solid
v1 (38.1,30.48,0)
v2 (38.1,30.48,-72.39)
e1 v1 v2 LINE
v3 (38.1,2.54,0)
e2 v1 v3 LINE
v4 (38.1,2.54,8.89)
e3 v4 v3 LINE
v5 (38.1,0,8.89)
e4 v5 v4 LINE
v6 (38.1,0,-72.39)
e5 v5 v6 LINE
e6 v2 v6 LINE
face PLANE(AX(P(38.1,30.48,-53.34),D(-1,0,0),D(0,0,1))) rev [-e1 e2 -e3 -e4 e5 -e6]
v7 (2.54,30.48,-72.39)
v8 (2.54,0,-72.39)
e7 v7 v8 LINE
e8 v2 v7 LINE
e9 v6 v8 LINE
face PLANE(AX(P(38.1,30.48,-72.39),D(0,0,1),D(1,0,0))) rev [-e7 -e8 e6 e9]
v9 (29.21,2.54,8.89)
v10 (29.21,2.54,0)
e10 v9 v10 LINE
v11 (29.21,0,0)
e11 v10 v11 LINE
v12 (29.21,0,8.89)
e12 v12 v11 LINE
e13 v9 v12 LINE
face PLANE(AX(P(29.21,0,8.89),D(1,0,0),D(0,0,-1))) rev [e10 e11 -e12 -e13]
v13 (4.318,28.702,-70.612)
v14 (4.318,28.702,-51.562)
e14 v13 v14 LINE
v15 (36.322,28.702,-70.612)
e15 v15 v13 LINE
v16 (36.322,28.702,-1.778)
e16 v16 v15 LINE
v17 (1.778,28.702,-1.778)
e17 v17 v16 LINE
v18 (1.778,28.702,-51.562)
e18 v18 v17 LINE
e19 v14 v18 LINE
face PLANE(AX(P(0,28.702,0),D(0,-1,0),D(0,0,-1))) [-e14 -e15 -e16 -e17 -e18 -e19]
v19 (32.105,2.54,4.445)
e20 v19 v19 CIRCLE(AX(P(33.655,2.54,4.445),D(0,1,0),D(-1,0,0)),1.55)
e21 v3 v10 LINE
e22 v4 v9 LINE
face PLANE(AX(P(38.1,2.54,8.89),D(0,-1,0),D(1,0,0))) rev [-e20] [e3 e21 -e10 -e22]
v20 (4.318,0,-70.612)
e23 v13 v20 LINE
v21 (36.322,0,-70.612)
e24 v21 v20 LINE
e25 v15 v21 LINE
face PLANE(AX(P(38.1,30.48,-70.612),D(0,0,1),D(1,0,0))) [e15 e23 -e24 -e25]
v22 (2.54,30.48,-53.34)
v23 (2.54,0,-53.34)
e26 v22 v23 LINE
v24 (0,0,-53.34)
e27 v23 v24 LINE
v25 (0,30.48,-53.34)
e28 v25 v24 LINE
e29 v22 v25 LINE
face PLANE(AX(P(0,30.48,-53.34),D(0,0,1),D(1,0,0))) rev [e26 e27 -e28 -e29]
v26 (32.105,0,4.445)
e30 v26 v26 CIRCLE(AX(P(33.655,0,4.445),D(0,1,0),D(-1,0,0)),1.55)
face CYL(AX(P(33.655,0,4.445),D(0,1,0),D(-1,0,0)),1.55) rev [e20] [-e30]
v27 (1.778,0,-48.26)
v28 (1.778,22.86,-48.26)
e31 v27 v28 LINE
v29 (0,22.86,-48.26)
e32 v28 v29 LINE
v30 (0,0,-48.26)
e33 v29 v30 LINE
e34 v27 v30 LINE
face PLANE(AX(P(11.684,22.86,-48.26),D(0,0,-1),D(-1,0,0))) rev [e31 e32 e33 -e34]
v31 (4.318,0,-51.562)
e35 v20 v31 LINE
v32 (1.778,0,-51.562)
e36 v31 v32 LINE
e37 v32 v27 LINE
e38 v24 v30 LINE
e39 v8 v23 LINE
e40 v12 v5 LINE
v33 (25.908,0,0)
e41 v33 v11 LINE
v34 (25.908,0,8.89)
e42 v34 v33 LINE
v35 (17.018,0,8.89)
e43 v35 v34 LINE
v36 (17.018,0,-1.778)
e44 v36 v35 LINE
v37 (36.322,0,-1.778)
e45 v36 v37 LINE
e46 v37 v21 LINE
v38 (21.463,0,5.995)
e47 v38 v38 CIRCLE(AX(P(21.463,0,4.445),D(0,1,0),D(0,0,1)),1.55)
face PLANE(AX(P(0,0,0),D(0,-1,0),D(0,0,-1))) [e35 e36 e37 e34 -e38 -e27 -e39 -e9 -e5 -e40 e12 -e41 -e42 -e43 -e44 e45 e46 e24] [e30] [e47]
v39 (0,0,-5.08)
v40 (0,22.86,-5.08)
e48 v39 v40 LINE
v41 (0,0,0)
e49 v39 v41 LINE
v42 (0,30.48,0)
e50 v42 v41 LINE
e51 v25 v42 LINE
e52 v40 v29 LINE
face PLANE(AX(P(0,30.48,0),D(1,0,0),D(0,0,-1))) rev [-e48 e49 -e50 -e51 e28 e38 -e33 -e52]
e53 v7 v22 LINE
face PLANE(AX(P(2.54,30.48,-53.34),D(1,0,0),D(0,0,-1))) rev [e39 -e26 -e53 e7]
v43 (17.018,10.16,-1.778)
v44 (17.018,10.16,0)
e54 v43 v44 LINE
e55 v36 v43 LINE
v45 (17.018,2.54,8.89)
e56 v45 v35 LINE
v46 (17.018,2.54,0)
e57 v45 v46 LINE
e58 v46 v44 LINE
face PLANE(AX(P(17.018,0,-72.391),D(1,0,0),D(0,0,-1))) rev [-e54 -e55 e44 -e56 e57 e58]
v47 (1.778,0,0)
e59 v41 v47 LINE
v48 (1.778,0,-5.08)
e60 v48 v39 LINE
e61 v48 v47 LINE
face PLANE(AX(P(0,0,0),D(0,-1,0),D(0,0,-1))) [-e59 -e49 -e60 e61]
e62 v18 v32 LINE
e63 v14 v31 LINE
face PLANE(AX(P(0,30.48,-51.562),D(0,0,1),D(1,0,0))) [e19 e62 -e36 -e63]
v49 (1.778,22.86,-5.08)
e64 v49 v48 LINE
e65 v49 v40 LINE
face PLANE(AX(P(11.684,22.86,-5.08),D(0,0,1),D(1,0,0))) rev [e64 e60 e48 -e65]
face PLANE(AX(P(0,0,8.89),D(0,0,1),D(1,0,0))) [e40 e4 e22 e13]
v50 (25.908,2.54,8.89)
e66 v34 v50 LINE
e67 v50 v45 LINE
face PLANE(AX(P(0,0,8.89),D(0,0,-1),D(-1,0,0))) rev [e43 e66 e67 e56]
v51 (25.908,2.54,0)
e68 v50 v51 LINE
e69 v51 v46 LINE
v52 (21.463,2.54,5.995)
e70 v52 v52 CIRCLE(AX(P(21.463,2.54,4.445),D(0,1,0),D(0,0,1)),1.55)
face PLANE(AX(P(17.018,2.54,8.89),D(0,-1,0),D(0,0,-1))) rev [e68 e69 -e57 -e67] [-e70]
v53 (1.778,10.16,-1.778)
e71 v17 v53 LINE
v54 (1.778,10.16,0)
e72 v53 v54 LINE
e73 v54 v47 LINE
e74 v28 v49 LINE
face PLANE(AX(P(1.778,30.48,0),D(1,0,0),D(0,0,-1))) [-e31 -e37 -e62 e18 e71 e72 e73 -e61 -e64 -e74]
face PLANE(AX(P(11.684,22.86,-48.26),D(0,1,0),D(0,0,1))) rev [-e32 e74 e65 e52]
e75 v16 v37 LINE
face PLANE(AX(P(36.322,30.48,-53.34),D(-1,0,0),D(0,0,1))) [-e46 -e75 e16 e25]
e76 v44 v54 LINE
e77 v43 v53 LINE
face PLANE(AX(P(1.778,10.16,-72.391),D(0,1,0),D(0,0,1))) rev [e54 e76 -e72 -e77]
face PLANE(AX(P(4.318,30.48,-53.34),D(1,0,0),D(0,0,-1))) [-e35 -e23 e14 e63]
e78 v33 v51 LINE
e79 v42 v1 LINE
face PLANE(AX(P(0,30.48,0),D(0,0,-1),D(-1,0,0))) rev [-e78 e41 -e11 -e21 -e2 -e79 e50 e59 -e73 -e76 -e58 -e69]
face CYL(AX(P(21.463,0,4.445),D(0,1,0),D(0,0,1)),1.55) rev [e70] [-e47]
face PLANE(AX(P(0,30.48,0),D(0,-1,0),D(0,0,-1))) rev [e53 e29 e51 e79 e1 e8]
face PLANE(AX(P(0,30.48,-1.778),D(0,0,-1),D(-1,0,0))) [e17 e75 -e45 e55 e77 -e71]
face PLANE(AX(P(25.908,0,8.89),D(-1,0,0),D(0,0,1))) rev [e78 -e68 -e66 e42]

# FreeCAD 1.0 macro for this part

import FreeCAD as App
import Part
import Sketcher

V = App.Vector
Q = App.Units.Quantity


def faces_at(feature, points):
    """Names of the faces that lie closest to the given points."""
    faces = feature.Shape.Faces
    near = lambda p: min(range(len(faces)), key=lambda i: faces[i].distToShape(Part.Vertex(*p))[0])
    return sorted({f"Face{near(p) + 1}" for p in points})

doc = App.newDocument("Part")
body = doc.addObject("PartDesign::Body", "Body")

sketch1 = body.newObject("Sketcher::SketchObject", "Sketch")
sketch1.AttachmentSupport = (doc.getObject("XZ_Plane"), [""])
sketch1.MapMode = "FlatFace"
sketch1.addGeometry(Part.LineSegment(V(0, 0, 0), V(38.1, 0, 0)), False)
sketch1.addGeometry(Part.LineSegment(V(38.1, 0, 0), V(38.1, -72.4, 0)), False)
sketch1.addGeometry(Part.LineSegment(V(38.1, -72.4, 0), V(2.5, -72.4, 0)), False)
sketch1.addGeometry(Part.LineSegment(V(2.5, -72.4, 0), V(2.5, -53.3, 0)), False)
sketch1.addGeometry(Part.LineSegment(V(2.5, -53.3, 0), V(0, -53.3, 0)), False)
sketch1.addGeometry(Part.LineSegment(V(0, -53.3, 0), V(0, 0, 0)), False)
sketch1.addConstraint(Sketcher.Constraint("Coincident", 0, 2, 1, 1))
sketch1.addConstraint(Sketcher.Constraint("Coincident", 1, 2, 2, 1))
sketch1.addConstraint(Sketcher.Constraint("Coincident", 2, 2, 3, 1))
sketch1.addConstraint(Sketcher.Constraint("Coincident", 3, 2, 4, 1))
sketch1.addConstraint(Sketcher.Constraint("Coincident", 4, 2, 5, 1))
sketch1.addConstraint(Sketcher.Constraint("Coincident", 5, 2, 0, 1))
sketch1.addConstraint(Sketcher.Constraint("Horizontal", 0))
sketch1.addConstraint(Sketcher.Constraint("Vertical", 1))
sketch1.addConstraint(Sketcher.Constraint("Horizontal", 2))
sketch1.addConstraint(Sketcher.Constraint("Vertical", 3))
sketch1.addConstraint(Sketcher.Constraint("Horizontal", 4))
sketch1.addConstraint(Sketcher.Constraint("Vertical", 5))
sketch1.addConstraint(Sketcher.Constraint("Coincident", 5, 2, -1, 1))
sketch1.addConstraint(Sketcher.Constraint("DistanceX", 0, 1, 0, 2, Q("1.5 in")))
sketch1.addConstraint(Sketcher.Constraint("DistanceX", 2, 2, 2, 1, Q("1.4 in")))
sketch1.addConstraint(Sketcher.Constraint("DistanceY", 5, 1, 5, 2, Q("2.1 in")))
sketch1.addConstraint(Sketcher.Constraint("DistanceY", 1, 2, 1, 1, Q("2.85 in")))
pad1 = body.newObject("PartDesign::Pad", "Pad")
pad1.Profile = sketch1
pad1.Length = Q("1.2 in")
pad1.Reversed = True
doc.recompute()

thickness = body.newObject("PartDesign::Thickness", "Thickness")
thickness.Base = (pad1, faces_at(pad1, [(19.05, 0, -36.195)]))
thickness.Value = Q("0.07 in")
thickness.Reversed = True
thickness.Join = "Intersection"

sketch2 = body.newObject("Sketcher::SketchObject", "Sketch001")
sketch2.AttachmentSupport = (doc.getObject("XY_Plane"), [""])
sketch2.MapMode = "FlatFace"
sketch2.addGeometry(Part.LineSegment(V(2, 10, 0), V(2, 0, 0)), False)
sketch2.addGeometry(Part.LineSegment(V(2, 0, 0), V(17, 0, 0)), False)
sketch2.addGeometry(Part.LineSegment(V(17, 0, 0), V(17, 10, 0)), False)
sketch2.addGeometry(Part.LineSegment(V(17, 10, 0), V(2, 10, 0)), False)
sketch2.addConstraint(Sketcher.Constraint("Coincident", 0, 2, 1, 1))
sketch2.addConstraint(Sketcher.Constraint("Coincident", 1, 2, 2, 1))
sketch2.addConstraint(Sketcher.Constraint("Coincident", 2, 2, 3, 1))
sketch2.addConstraint(Sketcher.Constraint("Coincident", 3, 2, 0, 1))
sketch2.addConstraint(Sketcher.Constraint("Vertical", 0))
sketch2.addConstraint(Sketcher.Constraint("Horizontal", 1))
sketch2.addConstraint(Sketcher.Constraint("Vertical", 2))
sketch2.addConstraint(Sketcher.Constraint("Horizontal", 3))
sketch2.addConstraint(Sketcher.Constraint("PointOnObject", 0, 2, -1))
sketch2.addConstraint(Sketcher.Constraint("DistanceX", 1, 1, 1, 2, Q("0.6 in")))
sketch2.addConstraint(Sketcher.Constraint("DistanceY", 0, 2, 0, 1, Q("0.4 in")))
sketch2.addConstraint(Sketcher.Constraint("DistanceX", -1, 1, 0, 2, Q("0.07 in")))
pocket1 = body.newObject("PartDesign::Pocket", "Pocket")
pocket1.Profile = sketch2
pocket1.Type = "UpToFirst"

sketch3 = body.newObject("Sketcher::SketchObject", "Sketch002")
sketch3.AttachmentSupport = (doc.getObject("XY_Plane"), [""])
sketch3.MapMode = "FlatFace"
sketch3.addGeometry(Part.LineSegment(V(17, 2.5, 0), V(17, 0, 0)), False)
sketch3.addGeometry(Part.LineSegment(V(17, 0, 0), V(25.9, 0, 0)), False)
sketch3.addGeometry(Part.LineSegment(V(25.9, 0, 0), V(25.9, 2.5, 0)), False)
sketch3.addGeometry(Part.LineSegment(V(25.9, 2.5, 0), V(17, 2.5, 0)), False)
sketch3.addGeometry(Part.LineSegment(V(29.2, 2.5, 0), V(29.2, 0, 0)), False)
sketch3.addGeometry(Part.LineSegment(V(29.2, 0, 0), V(38.1, 0, 0)), False)
sketch3.addGeometry(Part.LineSegment(V(38.1, 0, 0), V(38.1, 2.5, 0)), False)
sketch3.addGeometry(Part.LineSegment(V(38.1, 2.5, 0), V(29.2, 2.5, 0)), False)
sketch3.addConstraint(Sketcher.Constraint("Coincident", 0, 2, 1, 1))
sketch3.addConstraint(Sketcher.Constraint("Coincident", 1, 2, 2, 1))
sketch3.addConstraint(Sketcher.Constraint("Coincident", 2, 2, 3, 1))
sketch3.addConstraint(Sketcher.Constraint("Coincident", 3, 2, 0, 1))
sketch3.addConstraint(Sketcher.Constraint("Coincident", 4, 2, 5, 1))
sketch3.addConstraint(Sketcher.Constraint("Coincident", 5, 2, 6, 1))
sketch3.addConstraint(Sketcher.Constraint("Coincident", 6, 2, 7, 1))
sketch3.addConstraint(Sketcher.Constraint("Coincident", 7, 2, 4, 1))
sketch3.addConstraint(Sketcher.Constraint("Vertical", 0))
sketch3.addConstraint(Sketcher.Constraint("Horizontal", 1))
sketch3.addConstraint(Sketcher.Constraint("Vertical", 2))
sketch3.addConstraint(Sketcher.Constraint("Horizontal", 3))
sketch3.addConstraint(Sketcher.Constraint("Vertical", 4))
sketch3.addConstraint(Sketcher.Constraint("Horizontal", 5))
sketch3.addConstraint(Sketcher.Constraint("Vertical", 6))
sketch3.addConstraint(Sketcher.Constraint("Horizontal", 7))
sketch3.addConstraint(Sketcher.Constraint("PointOnObject", 0, 2, -1))
sketch3.addConstraint(Sketcher.Constraint("PointOnObject", 4, 2, -1))
sketch3.addConstraint(Sketcher.Constraint("Horizontal", 3, 2, 6, 2))
sketch3.addConstraint(Sketcher.Constraint("Equal", 3, 5))
sketch3.addConstraint(Sketcher.Constraint("DistanceY", 0, 2, 0, 1, Q("0.1 in")))
sketch3.addConstraint(Sketcher.Constraint("DistanceX", 1, 1, 1, 2, Q("0.35 in")))
sketch3.addConstraint(Sketcher.Constraint("DistanceX", -1, 1, 5, 2, Q("1.5 in")))
sketch3.addConstraint(Sketcher.Constraint("DistanceX", -1, 1, 0, 2, Q("0.67 in")))
pad2 = body.newObject("PartDesign::Pad", "Pad001")
pad2.Profile = sketch3
pad2.Length = Q("0.35 in")

sketch4 = body.newObject("Sketcher::SketchObject", "Sketch003")
sketch4.AttachmentSupport = (doc.getObject("XZ_Plane"), [""])
sketch4.MapMode = "FlatFace"
sketch4.AttachmentOffset = App.Placement(V(0, 0, -0.1 * 25.4), App.Rotation())
sketch4.addGeometry(Part.Circle(V(21.5, 4.4, 0), V(0, 0, 1), 1.6), False)
sketch4.addConstraint(Sketcher.Constraint("Diameter", 0, Q("3.1 mm")))
sketch4.addConstraint(Sketcher.Constraint("DistanceX", -1, 1, 0, 3, Q("0.845 in")))
sketch4.addConstraint(Sketcher.Constraint("DistanceY", -1, 1, 0, 3, Q("0.175 in")))
pocket2 = body.newObject("PartDesign::Pocket", "Pocket001")
pocket2.Profile = sketch4
pocket2.Type = "ThroughAll"
pocket2.Reversed = True

sketch5 = body.newObject("Sketcher::SketchObject", "Sketch004")
sketch5.AttachmentSupport = (doc.getObject("XZ_Plane"), [""])
sketch5.MapMode = "FlatFace"
sketch5.AttachmentOffset = App.Placement(V(0, 0, -0.1 * 25.4), App.Rotation())
sketch5.addGeometry(Part.Circle(V(33.7, 4.4, 0), V(0, 0, 1), 1.6), False)
sketch5.addConstraint(Sketcher.Constraint("Diameter", 0, Q("3.1 mm")))
sketch5.addConstraint(Sketcher.Constraint("DistanceX", -1, 1, 0, 3, Q("1.325 in")))
sketch5.addConstraint(Sketcher.Constraint("DistanceY", -1, 1, 0, 3, Q("0.175 in")))
pocket3 = body.newObject("PartDesign::Pocket", "Pocket002")
pocket3.Profile = sketch5
pocket3.Type = "ThroughAll"
pocket3.Reversed = True

sketch6 = body.newObject("Sketcher::SketchObject", "Sketch005")
sketch6.AttachmentSupport = (doc.getObject("YZ_Plane"), [""])
sketch6.MapMode = "FlatFace"
sketch6.addGeometry(Part.LineSegment(V(23, -48, 0), V(0, -48, 0)), False)
sketch6.addGeometry(Part.LineSegment(V(0, -48, 0), V(0, -5, 0)), False)
sketch6.addGeometry(Part.LineSegment(V(0, -5, 0), V(23, -5, 0)), False)
sketch6.addGeometry(Part.LineSegment(V(23, -5, 0), V(23, -48, 0)), False)
sketch6.addConstraint(Sketcher.Constraint("Coincident", 0, 2, 1, 1))
sketch6.addConstraint(Sketcher.Constraint("Coincident", 1, 2, 2, 1))
sketch6.addConstraint(Sketcher.Constraint("Coincident", 2, 2, 3, 1))
sketch6.addConstraint(Sketcher.Constraint("Coincident", 3, 2, 0, 1))
sketch6.addConstraint(Sketcher.Constraint("Horizontal", 0))
sketch6.addConstraint(Sketcher.Constraint("Vertical", 1))
sketch6.addConstraint(Sketcher.Constraint("Horizontal", 2))
sketch6.addConstraint(Sketcher.Constraint("Vertical", 3))
sketch6.addConstraint(Sketcher.Constraint("PointOnObject", 0, 2, -2))
sketch6.addConstraint(Sketcher.Constraint("DistanceX", 0, 2, 0, 1, Q("0.9 in")))
sketch6.addConstraint(Sketcher.Constraint("DistanceY", 1, 1, 1, 2, Q("1.7 in")))
sketch6.addConstraint(Sketcher.Constraint("DistanceY", 0, 2, -1, 1, Q("1.9 in")))
pocket4 = body.newObject("PartDesign::Pocket", "Pocket003")
pocket4.Profile = sketch6
pocket4.Length = Q("0.46 in")
pocket4.Reversed = True

doc.recompute()
